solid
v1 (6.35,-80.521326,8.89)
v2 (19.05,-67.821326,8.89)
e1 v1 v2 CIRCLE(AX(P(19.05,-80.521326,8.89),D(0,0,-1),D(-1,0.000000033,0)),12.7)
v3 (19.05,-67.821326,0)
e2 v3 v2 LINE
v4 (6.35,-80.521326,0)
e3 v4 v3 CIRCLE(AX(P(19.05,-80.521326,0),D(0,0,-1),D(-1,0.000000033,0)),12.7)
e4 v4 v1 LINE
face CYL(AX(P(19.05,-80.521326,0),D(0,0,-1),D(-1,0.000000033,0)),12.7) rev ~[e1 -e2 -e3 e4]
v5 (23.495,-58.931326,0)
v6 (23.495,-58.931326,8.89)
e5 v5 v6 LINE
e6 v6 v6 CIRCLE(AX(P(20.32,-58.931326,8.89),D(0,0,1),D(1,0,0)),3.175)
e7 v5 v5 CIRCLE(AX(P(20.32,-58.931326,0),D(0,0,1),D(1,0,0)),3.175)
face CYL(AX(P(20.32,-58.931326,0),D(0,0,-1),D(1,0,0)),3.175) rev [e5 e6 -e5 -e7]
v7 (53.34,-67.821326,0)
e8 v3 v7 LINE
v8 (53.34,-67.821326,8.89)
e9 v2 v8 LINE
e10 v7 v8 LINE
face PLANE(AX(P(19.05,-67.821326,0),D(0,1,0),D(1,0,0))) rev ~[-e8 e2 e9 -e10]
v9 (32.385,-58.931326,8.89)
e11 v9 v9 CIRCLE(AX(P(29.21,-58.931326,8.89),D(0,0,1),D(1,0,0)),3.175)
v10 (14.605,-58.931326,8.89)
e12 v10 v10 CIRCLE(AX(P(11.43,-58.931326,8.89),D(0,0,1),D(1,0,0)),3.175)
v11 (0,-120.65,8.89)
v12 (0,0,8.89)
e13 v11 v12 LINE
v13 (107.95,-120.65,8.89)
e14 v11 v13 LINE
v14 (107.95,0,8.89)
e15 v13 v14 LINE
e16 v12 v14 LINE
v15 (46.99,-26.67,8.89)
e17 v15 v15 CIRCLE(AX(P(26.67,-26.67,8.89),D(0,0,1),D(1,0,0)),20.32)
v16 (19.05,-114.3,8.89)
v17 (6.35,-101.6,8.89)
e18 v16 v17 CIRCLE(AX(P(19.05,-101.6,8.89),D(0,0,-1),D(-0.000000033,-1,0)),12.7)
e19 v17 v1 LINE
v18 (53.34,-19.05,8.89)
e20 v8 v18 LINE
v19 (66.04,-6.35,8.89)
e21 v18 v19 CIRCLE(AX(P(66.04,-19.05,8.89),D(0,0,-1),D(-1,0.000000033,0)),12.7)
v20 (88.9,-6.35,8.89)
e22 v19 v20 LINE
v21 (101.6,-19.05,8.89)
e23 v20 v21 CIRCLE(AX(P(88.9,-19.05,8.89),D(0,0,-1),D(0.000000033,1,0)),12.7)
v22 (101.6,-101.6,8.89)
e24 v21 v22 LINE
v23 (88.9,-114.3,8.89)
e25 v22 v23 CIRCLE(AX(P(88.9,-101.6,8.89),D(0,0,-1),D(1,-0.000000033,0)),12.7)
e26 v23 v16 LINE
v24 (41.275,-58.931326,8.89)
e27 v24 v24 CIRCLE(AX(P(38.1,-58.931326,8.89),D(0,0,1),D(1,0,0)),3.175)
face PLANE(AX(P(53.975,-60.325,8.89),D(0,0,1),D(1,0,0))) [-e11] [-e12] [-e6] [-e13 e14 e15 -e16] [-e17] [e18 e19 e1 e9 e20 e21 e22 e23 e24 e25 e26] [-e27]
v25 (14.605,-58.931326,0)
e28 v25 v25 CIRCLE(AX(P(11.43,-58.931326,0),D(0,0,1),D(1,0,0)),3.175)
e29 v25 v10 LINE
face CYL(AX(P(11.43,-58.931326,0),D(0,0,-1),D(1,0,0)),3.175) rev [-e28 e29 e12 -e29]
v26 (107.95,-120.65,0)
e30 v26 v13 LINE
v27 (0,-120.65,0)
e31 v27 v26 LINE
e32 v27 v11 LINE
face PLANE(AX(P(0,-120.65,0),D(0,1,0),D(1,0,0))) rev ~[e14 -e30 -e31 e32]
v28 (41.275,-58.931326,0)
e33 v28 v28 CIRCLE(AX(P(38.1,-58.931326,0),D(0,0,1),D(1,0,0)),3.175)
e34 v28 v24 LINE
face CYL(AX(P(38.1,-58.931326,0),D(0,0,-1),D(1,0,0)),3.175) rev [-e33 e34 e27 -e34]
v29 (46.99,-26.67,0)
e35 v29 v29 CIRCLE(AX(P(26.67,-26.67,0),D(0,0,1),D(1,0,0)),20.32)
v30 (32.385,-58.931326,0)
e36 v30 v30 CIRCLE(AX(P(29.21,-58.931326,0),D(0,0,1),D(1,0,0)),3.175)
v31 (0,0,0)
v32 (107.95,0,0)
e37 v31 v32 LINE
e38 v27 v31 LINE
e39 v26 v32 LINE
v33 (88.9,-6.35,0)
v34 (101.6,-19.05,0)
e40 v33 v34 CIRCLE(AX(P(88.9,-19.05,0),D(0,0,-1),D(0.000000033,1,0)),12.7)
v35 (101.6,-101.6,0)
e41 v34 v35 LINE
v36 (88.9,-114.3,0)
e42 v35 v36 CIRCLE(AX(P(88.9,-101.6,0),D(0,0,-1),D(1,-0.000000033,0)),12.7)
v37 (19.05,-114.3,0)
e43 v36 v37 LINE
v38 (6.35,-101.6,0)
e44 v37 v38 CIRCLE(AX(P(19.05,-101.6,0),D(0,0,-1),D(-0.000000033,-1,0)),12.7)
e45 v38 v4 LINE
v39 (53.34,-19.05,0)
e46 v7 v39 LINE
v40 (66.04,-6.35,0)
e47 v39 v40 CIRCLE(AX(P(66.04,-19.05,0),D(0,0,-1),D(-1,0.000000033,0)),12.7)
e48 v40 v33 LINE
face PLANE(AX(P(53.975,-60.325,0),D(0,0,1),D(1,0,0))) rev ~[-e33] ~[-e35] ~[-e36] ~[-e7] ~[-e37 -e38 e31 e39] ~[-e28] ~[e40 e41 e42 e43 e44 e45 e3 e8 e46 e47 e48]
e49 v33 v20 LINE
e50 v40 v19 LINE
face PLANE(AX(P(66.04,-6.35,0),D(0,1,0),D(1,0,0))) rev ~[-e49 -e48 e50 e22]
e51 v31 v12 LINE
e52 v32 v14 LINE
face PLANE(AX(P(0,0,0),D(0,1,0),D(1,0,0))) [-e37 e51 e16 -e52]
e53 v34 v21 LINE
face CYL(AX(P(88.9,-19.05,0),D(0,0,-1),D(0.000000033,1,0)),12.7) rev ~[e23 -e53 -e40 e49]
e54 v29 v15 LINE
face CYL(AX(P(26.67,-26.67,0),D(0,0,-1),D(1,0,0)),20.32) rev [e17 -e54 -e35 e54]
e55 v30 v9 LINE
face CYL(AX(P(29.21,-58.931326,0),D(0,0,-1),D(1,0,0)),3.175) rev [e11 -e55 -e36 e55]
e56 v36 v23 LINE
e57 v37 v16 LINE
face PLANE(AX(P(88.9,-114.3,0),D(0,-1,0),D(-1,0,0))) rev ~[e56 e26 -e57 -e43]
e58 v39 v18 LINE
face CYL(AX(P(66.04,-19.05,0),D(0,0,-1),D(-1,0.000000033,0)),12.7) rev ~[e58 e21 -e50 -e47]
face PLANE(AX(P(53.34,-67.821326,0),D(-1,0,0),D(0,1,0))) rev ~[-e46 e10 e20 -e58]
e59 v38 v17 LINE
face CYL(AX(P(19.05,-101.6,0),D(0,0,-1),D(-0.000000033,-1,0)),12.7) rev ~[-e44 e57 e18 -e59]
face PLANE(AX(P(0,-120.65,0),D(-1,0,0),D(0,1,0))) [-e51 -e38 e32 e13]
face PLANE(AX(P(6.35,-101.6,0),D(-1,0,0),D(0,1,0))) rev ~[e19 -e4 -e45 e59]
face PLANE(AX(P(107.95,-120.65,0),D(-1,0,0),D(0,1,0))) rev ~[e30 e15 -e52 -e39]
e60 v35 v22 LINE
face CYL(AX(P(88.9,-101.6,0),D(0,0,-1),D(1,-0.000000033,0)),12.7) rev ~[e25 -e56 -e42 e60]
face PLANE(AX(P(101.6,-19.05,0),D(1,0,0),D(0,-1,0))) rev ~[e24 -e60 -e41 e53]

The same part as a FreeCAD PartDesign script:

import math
import FreeCAD as App
import Part
import Sketcher
Q = App.Units.Quantity


def add_polygon(sketch, points):
    """Adds a closed chain of lines whose ends are joined by coincident constraints."""
    first, n = sketch.GeometryCount, len(points)
    for a, b in zip(points, points[1:] + points[:1]):
        sketch.addGeometry(Part.LineSegment(App.Vector(*a, 0), App.Vector(*b, 0)), False)
    for i in range(n):
        sketch.addConstraint(Sketcher.Constraint("Coincident", first + i, 2, first + (i + 1) % n, 1))

doc = App.newDocument("Part")
params = doc.addObject("Spreadsheet::Sheet", "Params")
for row, (alias, value) in enumerate([
    ("sketch1_diameter", "1.6 in"),
    ("sketch1_radius", "0.5 in"),
    ("sketch1_diameter2", "0.25 in"),
    ("sketch1_width", "0.9 in"),
    ("sketch1_width2", "4.25 in"),
    ("pad1_length", "0.35 in"),
], start=1):
    params.set(f"A{row}", alias)
    params.set(f"B{row}", "=" + value)
    params.setAlias(f"B{row}", alias)

body = doc.addObject("PartDesign::Body", "Body")

# Sketch on XY plane
sketch1 = body.newObject("Sketcher::SketchObject", "Sketch")
sketch1.AttachmentSupport = (doc.getObject("XY_Plane"), [""])
sketch1.MapMode = "FlatFace"
add_polygon(sketch1, [(0, 0), (0, -120.7), (108, -120.7), (108, 0)])  # lines 0-3
sketch1.addGeometry(Part.Circle(App.Vector(11.4, -58.9, 0), App.Vector(0, 0, 1), 3.2), False)  # 4
sketch1.addGeometry(Part.Circle(App.Vector(20.3, -58.9, 0), App.Vector(0, 0, 1), 3.2), False)  # 5
sketch1.addGeometry(Part.Circle(App.Vector(29.2, -58.9, 0), App.Vector(0, 0, 1), 3.2), False)  # 6
sketch1.addGeometry(Part.Circle(App.Vector(38.1, -58.9, 0), App.Vector(0, 0, 1), 3.2), False)  # 7
sketch1.addGeometry(Part.Circle(App.Vector(26.7, -26.7, 0), App.Vector(0, 0, 1), 20.3), False)  # 8
sketch1.addGeometry(Part.LineSegment(App.Vector(53.3, -67.8, 0), App.Vector(53.3, -19.1, 0)), False)  # 9
sketch1.addGeometry(Part.ArcOfCircle(Part.Circle(App.Vector(66, -19.1, 0), App.Vector(0, 0, 1), 12.7), math.radians(90), math.radians(180)), False)  # 10
sketch1.addGeometry(Part.LineSegment(App.Vector(66, -6.3, 0), App.Vector(88.9, -6.3, 0)), False)  # 11
sketch1.addGeometry(Part.ArcOfCircle(Part.Circle(App.Vector(88.9, -19.1, 0), App.Vector(0, 0, 1), 12.7), math.radians(0), math.radians(90)), False)  # 12
sketch1.addGeometry(Part.LineSegment(App.Vector(101.6, -19.1, 0), App.Vector(101.6, -101.6, 0)), False)  # 13
sketch1.addGeometry(Part.ArcOfCircle(Part.Circle(App.Vector(88.9, -101.6, 0), App.Vector(0, 0, 1), 12.7), math.radians(-90), math.radians(0)), False)  # 14
sketch1.addGeometry(Part.LineSegment(App.Vector(88.9, -114.3, 0), App.Vector(19.1, -114.3, 0)), False)  # 15
sketch1.addGeometry(Part.ArcOfCircle(Part.Circle(App.Vector(19.1, -101.6, 0), App.Vector(0, 0, 1), 12.7), math.radians(-180), math.radians(-90)), False)  # 16
sketch1.addGeometry(Part.LineSegment(App.Vector(6.3, -101.6, 0), App.Vector(6.3, -80.5, 0)), False)  # 17
sketch1.addGeometry(Part.ArcOfCircle(Part.Circle(App.Vector(19.1, -80.5, 0), App.Vector(0, 0, 1), 12.7), math.radians(90), math.radians(180)), False)  # 18
sketch1.addGeometry(Part.LineSegment(App.Vector(19.1, -67.8, 0), App.Vector(53.3, -67.8, 0)), False)  # 19
sketch1.addConstraint([
    Sketcher.Constraint("Tangent", 9, 2, 10, 2),
    Sketcher.Constraint("Tangent", 10, 1, 11, 1),
    Sketcher.Constraint("Tangent", 11, 2, 12, 2),
    Sketcher.Constraint("Tangent", 12, 1, 13, 1),
    Sketcher.Constraint("Tangent", 13, 2, 14, 2),
    Sketcher.Constraint("Tangent", 14, 1, 15, 1),
    Sketcher.Constraint("Tangent", 15, 2, 16, 2),
    Sketcher.Constraint("Tangent", 16, 1, 17, 1),
    Sketcher.Constraint("Tangent", 17, 2, 18, 2),
    Sketcher.Constraint("Tangent", 18, 1, 19, 1),
    Sketcher.Constraint("Coincident", 19, 2, 9, 1),
    Sketcher.Constraint("Vertical", 0),
    Sketcher.Constraint("Horizontal", 1),
    Sketcher.Constraint("Vertical", 2),
    Sketcher.Constraint("Horizontal", 3),
    Sketcher.Constraint("Vertical", 9),
    Sketcher.Constraint("Horizontal", 11),
    Sketcher.Constraint("Vertical", 13),
    Sketcher.Constraint("Horizontal", 15),
    Sketcher.Constraint("Vertical", 17),
    Sketcher.Constraint("Horizontal", 19),
    Sketcher.Constraint("Coincident", 3, 2, -1, 1),
    Sketcher.Constraint("Equal", 4, 5),
    Sketcher.Constraint("Equal", 5, 6),
    Sketcher.Constraint("Equal", 6, 7),
    Sketcher.Constraint("Equal", 10, 12),
    Sketcher.Constraint("Equal", 12, 14),
    Sketcher.Constraint("Equal", 14, 16),
    Sketcher.Constraint("Equal", 16, 18),
    Sketcher.Constraint("Horizontal", 4, 3, 5, 3),
    Sketcher.Constraint("Horizontal", 5, 3, 6, 3),
    Sketcher.Constraint("Horizontal", 6, 3, 7, 3),
    Sketcher.Constraint("Diameter", 8, Q("1.6 in")),
    Sketcher.Constraint("Radius", 10, Q("0.5 in")),
    Sketcher.Constraint("Diameter", 4, Q("0.25 in")),
    Sketcher.Constraint("DistanceX", 11, 1, 11, 2, Q("0.9 in")),
    Sketcher.Constraint("DistanceY", 14, 3, -1, 1, Q("4 in")),
    Sketcher.Constraint("DistanceX", -1, 1, 12, 1, Q("4 in")),
    Sketcher.Constraint("DistanceX", 7, 3, 12, 3, Q("2 in")),
    Sketcher.Constraint("DistanceX", 1, 1, 1, 2, Q("4.25 in")),
    Sketcher.Constraint("DistanceX", 15, 2, 15, 1, Q("2.75 in")),
    Sketcher.Constraint("DistanceY", 0, 2, 0, 1, Q("4.75 in")),
    Sketcher.Constraint("DistanceY", 13, 2, 13, 1, Q("3.25 in")),
    Sketcher.Constraint("DistanceX", -1, 1, 5, 3, Q("0.8 in")),
    Sketcher.Constraint("DistanceX", 4, 3, 6, 3, Q("0.7 in")),
    Sketcher.Constraint("DistanceX", 8, 3, 6, 3, Q("0.1 in")),
    Sketcher.Constraint("DistanceY", 8, 3, 10, 3, Q("0.3 in")),
    Sketcher.Constraint("DistanceX", 4, 3, 16, 3, Q("0.3 in")),
    Sketcher.Constraint("DistanceY", 18, 3, 5, 3, Q("0.85 in")),
    Sketcher.Constraint("DistanceY", 9, 1, 9, 2, 48.771326),
])
sketch1.setExpression("Constraints[36]", "Params.sketch1_diameter")
sketch1.setExpression("Constraints[37]", "Params.sketch1_radius")
sketch1.setExpression("Constraints[38]", "Params.sketch1_diameter2")
sketch1.setExpression("Constraints[39]", "Params.sketch1_width")
sketch1.setExpression("Constraints[43]", "Params.sketch1_width2")
pad1 = body.newObject("PartDesign::Pad", "Pad")
pad1.Profile = sketch1
pad1.setExpression("Length", "Params.pad1_length")

doc.recompute()
